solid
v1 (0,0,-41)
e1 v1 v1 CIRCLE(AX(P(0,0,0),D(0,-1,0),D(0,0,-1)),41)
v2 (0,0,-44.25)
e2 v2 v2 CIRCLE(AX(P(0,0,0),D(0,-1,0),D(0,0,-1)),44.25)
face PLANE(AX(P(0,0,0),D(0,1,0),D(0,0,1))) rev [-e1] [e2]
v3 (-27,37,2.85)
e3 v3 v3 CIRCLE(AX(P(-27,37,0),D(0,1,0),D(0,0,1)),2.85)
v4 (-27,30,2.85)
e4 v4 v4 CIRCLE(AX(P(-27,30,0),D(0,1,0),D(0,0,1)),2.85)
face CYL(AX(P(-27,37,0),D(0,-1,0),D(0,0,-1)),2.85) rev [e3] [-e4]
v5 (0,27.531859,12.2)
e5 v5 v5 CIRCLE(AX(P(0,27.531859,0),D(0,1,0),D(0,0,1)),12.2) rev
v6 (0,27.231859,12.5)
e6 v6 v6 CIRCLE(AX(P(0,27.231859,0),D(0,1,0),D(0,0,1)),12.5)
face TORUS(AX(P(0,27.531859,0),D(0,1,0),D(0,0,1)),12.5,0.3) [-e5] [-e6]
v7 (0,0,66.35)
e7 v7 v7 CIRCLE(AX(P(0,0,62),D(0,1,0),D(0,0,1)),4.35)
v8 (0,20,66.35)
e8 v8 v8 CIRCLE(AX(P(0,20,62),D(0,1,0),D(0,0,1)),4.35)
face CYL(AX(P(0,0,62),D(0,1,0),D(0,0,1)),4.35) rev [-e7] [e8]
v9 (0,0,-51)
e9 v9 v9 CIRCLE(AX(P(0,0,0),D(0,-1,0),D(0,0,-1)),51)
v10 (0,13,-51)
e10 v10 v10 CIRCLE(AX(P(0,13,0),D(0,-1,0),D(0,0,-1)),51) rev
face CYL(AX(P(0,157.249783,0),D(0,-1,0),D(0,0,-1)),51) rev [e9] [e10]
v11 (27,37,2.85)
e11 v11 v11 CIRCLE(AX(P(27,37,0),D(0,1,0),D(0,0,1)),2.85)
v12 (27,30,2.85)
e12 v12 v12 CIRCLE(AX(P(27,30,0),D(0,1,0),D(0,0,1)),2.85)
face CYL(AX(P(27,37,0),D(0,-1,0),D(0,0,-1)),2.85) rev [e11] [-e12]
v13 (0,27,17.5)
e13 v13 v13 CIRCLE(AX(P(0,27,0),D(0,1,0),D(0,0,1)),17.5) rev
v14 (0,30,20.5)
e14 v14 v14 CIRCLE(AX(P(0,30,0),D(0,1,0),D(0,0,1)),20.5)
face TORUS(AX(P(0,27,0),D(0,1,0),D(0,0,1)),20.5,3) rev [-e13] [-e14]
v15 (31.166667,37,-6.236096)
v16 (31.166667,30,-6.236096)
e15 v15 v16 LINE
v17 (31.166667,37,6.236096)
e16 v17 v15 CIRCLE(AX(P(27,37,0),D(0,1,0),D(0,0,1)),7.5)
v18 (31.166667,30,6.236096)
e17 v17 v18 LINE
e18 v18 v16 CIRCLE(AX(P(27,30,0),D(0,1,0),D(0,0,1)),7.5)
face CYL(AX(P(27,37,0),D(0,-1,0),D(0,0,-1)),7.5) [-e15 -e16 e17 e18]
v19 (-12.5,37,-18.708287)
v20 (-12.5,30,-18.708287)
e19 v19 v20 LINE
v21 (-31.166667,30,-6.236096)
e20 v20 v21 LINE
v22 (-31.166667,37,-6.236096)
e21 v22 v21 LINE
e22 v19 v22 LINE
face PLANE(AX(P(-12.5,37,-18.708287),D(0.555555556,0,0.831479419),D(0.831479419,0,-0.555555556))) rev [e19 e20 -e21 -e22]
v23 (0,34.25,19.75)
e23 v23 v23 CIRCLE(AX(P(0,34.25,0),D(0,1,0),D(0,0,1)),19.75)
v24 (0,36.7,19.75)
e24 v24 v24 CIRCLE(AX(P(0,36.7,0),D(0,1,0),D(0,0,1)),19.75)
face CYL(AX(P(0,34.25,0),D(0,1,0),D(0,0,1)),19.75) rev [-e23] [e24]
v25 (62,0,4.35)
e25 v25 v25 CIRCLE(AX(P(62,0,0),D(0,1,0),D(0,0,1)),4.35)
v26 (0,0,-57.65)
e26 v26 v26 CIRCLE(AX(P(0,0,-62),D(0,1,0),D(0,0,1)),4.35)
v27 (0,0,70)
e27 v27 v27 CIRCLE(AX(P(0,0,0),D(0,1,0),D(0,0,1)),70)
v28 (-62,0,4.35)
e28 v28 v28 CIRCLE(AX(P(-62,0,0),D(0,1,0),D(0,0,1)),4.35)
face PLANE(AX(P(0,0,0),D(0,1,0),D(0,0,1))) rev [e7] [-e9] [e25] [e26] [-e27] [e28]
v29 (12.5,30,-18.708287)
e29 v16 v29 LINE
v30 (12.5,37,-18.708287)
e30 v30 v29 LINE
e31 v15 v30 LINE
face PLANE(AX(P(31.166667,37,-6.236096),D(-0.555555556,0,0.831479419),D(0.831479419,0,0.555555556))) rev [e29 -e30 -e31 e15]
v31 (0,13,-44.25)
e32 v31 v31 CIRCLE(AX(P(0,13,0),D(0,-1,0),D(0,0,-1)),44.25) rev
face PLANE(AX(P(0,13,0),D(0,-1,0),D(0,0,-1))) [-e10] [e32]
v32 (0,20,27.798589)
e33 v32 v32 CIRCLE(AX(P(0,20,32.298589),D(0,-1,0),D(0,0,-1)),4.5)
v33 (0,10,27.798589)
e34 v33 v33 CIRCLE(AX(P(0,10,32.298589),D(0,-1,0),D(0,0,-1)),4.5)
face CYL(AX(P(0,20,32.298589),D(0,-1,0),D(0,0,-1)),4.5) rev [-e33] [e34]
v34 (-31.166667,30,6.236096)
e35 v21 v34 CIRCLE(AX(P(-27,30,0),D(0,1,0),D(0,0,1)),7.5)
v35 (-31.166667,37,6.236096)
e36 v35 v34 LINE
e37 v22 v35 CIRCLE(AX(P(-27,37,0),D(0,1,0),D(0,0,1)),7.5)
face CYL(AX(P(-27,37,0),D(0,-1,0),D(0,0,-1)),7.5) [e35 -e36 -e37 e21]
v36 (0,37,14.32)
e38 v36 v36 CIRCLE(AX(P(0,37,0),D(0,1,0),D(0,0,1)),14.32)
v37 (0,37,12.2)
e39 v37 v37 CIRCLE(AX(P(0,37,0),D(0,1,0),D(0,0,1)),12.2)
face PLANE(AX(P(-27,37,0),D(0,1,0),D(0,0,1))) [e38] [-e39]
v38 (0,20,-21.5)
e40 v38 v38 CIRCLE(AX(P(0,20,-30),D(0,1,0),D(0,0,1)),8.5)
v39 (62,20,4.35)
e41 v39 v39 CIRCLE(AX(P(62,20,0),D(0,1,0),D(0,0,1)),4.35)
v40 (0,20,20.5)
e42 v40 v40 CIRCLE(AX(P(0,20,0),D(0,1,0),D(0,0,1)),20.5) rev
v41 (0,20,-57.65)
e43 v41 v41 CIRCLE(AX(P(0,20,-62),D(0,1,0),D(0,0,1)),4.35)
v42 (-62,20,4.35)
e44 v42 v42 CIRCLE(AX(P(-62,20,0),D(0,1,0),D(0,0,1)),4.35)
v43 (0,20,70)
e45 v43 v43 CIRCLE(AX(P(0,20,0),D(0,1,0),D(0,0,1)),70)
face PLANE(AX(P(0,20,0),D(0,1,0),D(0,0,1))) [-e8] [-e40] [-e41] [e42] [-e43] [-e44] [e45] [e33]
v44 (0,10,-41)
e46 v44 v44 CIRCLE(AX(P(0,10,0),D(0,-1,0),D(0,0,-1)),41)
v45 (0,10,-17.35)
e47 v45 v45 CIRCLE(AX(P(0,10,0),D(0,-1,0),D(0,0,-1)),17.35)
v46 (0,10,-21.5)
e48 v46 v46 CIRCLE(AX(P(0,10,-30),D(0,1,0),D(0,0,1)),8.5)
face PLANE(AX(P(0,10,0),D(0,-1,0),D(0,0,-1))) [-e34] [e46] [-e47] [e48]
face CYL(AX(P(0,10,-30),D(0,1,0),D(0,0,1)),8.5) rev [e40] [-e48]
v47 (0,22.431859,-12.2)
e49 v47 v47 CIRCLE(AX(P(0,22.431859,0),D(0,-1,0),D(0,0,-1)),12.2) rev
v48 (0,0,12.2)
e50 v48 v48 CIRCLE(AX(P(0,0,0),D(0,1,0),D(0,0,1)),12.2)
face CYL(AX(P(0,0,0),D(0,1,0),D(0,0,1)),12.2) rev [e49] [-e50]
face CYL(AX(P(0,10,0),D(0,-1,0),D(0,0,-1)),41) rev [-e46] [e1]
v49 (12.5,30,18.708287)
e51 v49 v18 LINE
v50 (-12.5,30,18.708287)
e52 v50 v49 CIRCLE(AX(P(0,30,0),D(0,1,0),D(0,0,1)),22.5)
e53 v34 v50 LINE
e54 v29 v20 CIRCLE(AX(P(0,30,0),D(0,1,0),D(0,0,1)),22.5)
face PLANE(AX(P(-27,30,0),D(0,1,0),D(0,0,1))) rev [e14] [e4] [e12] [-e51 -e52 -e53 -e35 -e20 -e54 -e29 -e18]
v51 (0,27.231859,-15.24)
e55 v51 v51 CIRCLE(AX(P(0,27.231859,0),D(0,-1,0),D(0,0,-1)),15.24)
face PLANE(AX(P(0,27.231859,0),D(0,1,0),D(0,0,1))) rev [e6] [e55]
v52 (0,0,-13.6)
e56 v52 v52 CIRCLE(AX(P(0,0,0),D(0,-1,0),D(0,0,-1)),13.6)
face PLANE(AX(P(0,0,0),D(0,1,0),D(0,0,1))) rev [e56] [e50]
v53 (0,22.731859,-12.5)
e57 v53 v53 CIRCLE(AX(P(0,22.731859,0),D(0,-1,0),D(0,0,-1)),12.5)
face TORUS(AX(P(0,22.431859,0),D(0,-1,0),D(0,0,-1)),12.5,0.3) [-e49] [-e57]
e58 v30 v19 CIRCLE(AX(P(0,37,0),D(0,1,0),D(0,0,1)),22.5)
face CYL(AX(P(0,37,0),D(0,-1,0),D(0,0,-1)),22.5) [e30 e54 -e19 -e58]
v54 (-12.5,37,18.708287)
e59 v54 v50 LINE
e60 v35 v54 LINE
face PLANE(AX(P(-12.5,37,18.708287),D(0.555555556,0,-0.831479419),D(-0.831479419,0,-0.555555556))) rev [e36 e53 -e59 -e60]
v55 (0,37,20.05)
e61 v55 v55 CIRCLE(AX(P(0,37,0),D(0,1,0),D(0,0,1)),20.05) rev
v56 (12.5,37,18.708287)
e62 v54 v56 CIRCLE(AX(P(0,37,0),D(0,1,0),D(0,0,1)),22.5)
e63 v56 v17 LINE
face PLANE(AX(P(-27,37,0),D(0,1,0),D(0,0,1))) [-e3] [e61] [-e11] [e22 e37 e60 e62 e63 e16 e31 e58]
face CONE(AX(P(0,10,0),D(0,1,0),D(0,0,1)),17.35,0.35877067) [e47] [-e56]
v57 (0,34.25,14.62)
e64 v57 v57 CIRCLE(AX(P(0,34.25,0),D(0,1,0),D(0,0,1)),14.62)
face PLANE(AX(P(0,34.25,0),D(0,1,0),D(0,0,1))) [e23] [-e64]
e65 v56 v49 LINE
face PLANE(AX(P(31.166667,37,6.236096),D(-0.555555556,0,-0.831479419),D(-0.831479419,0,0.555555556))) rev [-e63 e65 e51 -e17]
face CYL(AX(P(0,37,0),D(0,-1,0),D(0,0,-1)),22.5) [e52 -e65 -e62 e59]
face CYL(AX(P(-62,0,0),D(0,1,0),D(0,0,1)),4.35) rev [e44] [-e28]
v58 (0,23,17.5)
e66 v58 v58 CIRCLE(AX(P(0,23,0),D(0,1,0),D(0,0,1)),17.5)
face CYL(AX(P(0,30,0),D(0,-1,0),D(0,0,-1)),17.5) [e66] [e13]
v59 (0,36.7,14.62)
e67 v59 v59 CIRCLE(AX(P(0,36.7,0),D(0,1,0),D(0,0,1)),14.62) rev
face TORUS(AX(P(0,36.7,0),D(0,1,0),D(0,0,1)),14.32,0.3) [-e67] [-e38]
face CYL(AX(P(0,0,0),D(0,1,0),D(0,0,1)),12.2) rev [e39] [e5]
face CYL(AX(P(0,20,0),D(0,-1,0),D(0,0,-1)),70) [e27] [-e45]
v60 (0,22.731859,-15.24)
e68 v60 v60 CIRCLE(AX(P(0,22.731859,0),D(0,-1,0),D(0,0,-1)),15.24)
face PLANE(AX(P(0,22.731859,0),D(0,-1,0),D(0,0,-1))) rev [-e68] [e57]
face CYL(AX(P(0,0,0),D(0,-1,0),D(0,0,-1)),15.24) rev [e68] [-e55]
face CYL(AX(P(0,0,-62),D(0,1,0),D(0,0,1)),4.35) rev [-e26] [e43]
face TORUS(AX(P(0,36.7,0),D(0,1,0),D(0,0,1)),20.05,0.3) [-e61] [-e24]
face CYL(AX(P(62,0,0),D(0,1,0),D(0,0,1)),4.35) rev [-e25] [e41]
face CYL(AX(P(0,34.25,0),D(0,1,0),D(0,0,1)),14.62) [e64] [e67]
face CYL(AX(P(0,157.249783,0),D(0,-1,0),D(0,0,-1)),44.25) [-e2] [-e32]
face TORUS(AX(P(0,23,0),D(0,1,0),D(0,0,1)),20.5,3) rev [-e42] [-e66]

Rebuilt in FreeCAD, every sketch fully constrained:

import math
import FreeCAD as App
import Part
import Sketcher


def edges_at(feature, points):
    """Names of the edges that pass closest to the given points."""
    edges = feature.Shape.Edges
    near = lambda p: min(range(len(edges)), key=lambda i: edges[i].distToShape(Part.Vertex(*p))[0])
    return sorted({f"Edge{near(p) + 1}" for p in points})


def add_polygon(sketch, points):
    """Adds a closed chain of lines whose ends are joined by coincident constraints."""
    first, n = sketch.GeometryCount, len(points)
    for a, b in zip(points, points[1:] + points[:1]):
        sketch.addGeometry(Part.LineSegment(App.Vector(*a, 0), App.Vector(*b, 0)), False)
    for i in range(n):
        sketch.addConstraint(Sketcher.Constraint("Coincident", first + i, 2, first + (i + 1) % n, 1))

doc = App.newDocument("Part")
body = doc.addObject("PartDesign::Body", "Body")

sketch1 = doc.addObject("Sketcher::SketchObject", "Sketch")
body.addObject(sketch1)
sketch1.AttachmentSupport = (doc.XZ_Plane, [""])
sketch1.MapMode = "FlatFace"
sketch1.addGeometry(Part.Circle(App.Vector(0, 0, 0), App.Vector(0, 0, 1), 70), False)
sketch1.addConstraint(Sketcher.Constraint("Coincident", 0, 3, -1, 1))
sketch1.addConstraint(Sketcher.Constraint("Diameter", 0, 140.0))
pad1 = doc.addObject("PartDesign::Pad", "Pad")
body.addObject(pad1)
pad1.Profile = sketch1
pad1.Length = 20
pad1.Reversed = True

sketch2 = doc.addObject("Sketcher::SketchObject", "Sketch001")
body.addObject(sketch2)
sketch2.AttachmentSupport = (doc.XZ_Plane, [""])
sketch2.MapMode = "FlatFace"
sketch2.addGeometry(Part.Circle(App.Vector(0, 0, 0), App.Vector(0, 0, 1), 50.03), False)
sketch2.addGeometry(Part.Circle(App.Vector(0, 0, 0), App.Vector(0, 0, 1), 45), False)
sketch2.addGeometry(Part.Circle(App.Vector(0, 0, 0), App.Vector(0, 0, 1), 41), False)
sketch2.addGeometry(Part.Circle(App.Vector(0, 0, 0), App.Vector(0, 0, 1), 17.35), False)
sketch2.addConstraint(Sketcher.Constraint("Coincident", 0, 3, -1, 1))
sketch2.addConstraint(Sketcher.Constraint("Coincident", 1, 3, -1, 1))
sketch2.addConstraint(Sketcher.Constraint("Coincident", 2, 3, -1, 1))
sketch2.addConstraint(Sketcher.Constraint("Coincident", 3, 3, -1, 1))
sketch2.addConstraint(Sketcher.Constraint("Diameter", 1, 90.0))
sketch2.addConstraint(Sketcher.Constraint("Diameter", 2, 82.0))
sketch2.addConstraint(Sketcher.Constraint("Diameter", 3, 34.7))
sketch2.addConstraint(Sketcher.Constraint("Diameter", 0, 100.06))
pocket1 = doc.addObject("PartDesign::Pocket", "Pocket")
body.addObject(pocket1)
pocket1.Profile = sketch2
pocket1.Length = 10

sketch3 = doc.addObject("Sketcher::SketchObject", "Sketch002")
body.addObject(sketch3)
sketch3.AttachmentSupport = (doc.XY_Plane, [""])
sketch3.MapMode = "FlatFace"
add_polygon(sketch3, [(-17.35, 10), (-17.35, 0), (-13.6, 0)])
sketch3.addConstraint(Sketcher.Constraint("Vertical", 0))
sketch3.addConstraint(Sketcher.Constraint("Horizontal", 1))
sketch3.addConstraint(Sketcher.Constraint("PointOnObject", 0, 2, -1))
sketch3.addConstraint(Sketcher.Constraint("DistanceY", 0, 2, 0, 1, 10.0))
sketch3.addConstraint(Sketcher.Constraint("DistanceX", 1, 1, 1, 2, 3.75))
sketch3.addConstraint(Sketcher.Constraint("DistanceX", 1, 2, -1, 1, 13.6))
groove = doc.addObject("PartDesign::Groove", "Groove")
body.addObject(groove)
groove.Profile = sketch3
groove.ReferenceAxis = (sketch3, ["V_Axis"])
groove.Angle = 360

sketch4 = doc.addObject("Sketcher::SketchObject", "Sketch003")
body.addObject(sketch4)
sketch4.AttachmentSupport = (doc.XZ_Plane, [""])
sketch4.MapMode = "FlatFace"
sketch4.AttachmentOffset = App.Placement(App.Vector(0, 0, -20), App.Rotation())
sketch4.addGeometry(Part.Circle(App.Vector(0, 0, 0), App.Vector(0, 0, 1), 17.5), False)
sketch4.addConstraint(Sketcher.Constraint("Coincident", 0, 3, -1, 1))
sketch4.addConstraint(Sketcher.Constraint("Diameter", 0, 35.0))
pad2 = doc.addObject("PartDesign::Pad", "Pad001")
body.addObject(pad2)
pad2.Profile = sketch4
pad2.Length = 10
pad2.Reversed = True

sketch5 = doc.addObject("Sketcher::SketchObject", "Sketch004")
body.addObject(sketch5)
sketch5.AttachmentSupport = (doc.XZ_Plane, [""])
sketch5.MapMode = "FlatFace"
sketch5.AttachmentOffset = App.Placement(App.Vector(0, 0, -30), App.Rotation())
sketch5.addGeometry(Part.LineSegment(App.Vector(12.5, 18.708287, 0), App.Vector(31.166667, 6.236096, 0)), False)
sketch5.addGeometry(Part.ArcOfCircle(Part.Circle(App.Vector(27, 0, 0), App.Vector(0, 0, 1), 7.5), math.radians(-56.251011), math.radians(56.251011)), False)
sketch5.addGeometry(Part.LineSegment(App.Vector(31.166667, -6.236096, 0), App.Vector(12.5, -18.708287, 0)), False)
sketch5.addGeometry(Part.ArcOfCircle(Part.Circle(App.Vector(0, 0, 0), App.Vector(0, 0, 1), 22.5), math.radians(-123.748989), math.radians(-56.251011)), False)
sketch5.addGeometry(Part.LineSegment(App.Vector(-12.5, -18.708287, 0), App.Vector(-31.166667, -6.236096, 0)), False)
sketch5.addGeometry(Part.ArcOfCircle(Part.Circle(App.Vector(-27, 0, 0), App.Vector(0, 0, 1), 7.5), math.radians(123.748989), math.radians(236.251011)), False)
sketch5.addGeometry(Part.LineSegment(App.Vector(-31.166667, 6.236096, 0), App.Vector(-12.5, 18.708287, 0)), False)
sketch5.addGeometry(Part.ArcOfCircle(Part.Circle(App.Vector(0, 0, 0), App.Vector(0, 0, 1), 22.5), math.radians(56.251011), math.radians(123.748989)), False)
sketch5.addGeometry(Part.Circle(App.Vector(27, 0, 0), App.Vector(0, 0, 1), 2.85), False)
sketch5.addGeometry(Part.Circle(App.Vector(-27, 0, 0), App.Vector(0, 0, 1), 2.85), False)
sketch5.addConstraint(Sketcher.Constraint("Tangent", 0, 2, 1, 2))
sketch5.addConstraint(Sketcher.Constraint("Tangent", 1, 1, 2, 1))
sketch5.addConstraint(Sketcher.Constraint("Tangent", 2, 2, 3, 2))
sketch5.addConstraint(Sketcher.Constraint("Tangent", 3, 1, 4, 1))
sketch5.addConstraint(Sketcher.Constraint("Tangent", 4, 2, 5, 2))
sketch5.addConstraint(Sketcher.Constraint("Tangent", 5, 1, 6, 1))
sketch5.addConstraint(Sketcher.Constraint("Tangent", 6, 2, 7, 2))
sketch5.addConstraint(Sketcher.Constraint("Tangent", 7, 1, 0, 1))
sketch5.addConstraint(Sketcher.Constraint("Coincident", 3, 3, -1, 1))
sketch5.addConstraint(Sketcher.Constraint("Coincident", 7, 3, -1, 1))
sketch5.addConstraint(Sketcher.Constraint("Coincident", 8, 3, 1, 3))
sketch5.addConstraint(Sketcher.Constraint("Coincident", 9, 3, 5, 3))
sketch5.addConstraint(Sketcher.Constraint("Equal", 1, 5))
sketch5.addConstraint(Sketcher.Constraint("Equal", 3, 7))
sketch5.addConstraint(Sketcher.Constraint("Equal", 8, 9))
sketch5.addConstraint(Sketcher.Constraint("Symmetric", 1, 3, 5, 3, -1, 1))
sketch5.addConstraint(Sketcher.Constraint("PointOnObject", 1, 3, -1))
sketch5.addConstraint(Sketcher.Constraint("Diameter", 8, 5.7))
sketch5.addConstraint(Sketcher.Constraint("Radius", 1, 7.5))
sketch5.addConstraint(Sketcher.Constraint("Radius", 3, 22.5))
sketch5.addConstraint(Sketcher.Constraint("DistanceX", -1, 1, 1, 3, 27.0))
pad3 = doc.addObject("PartDesign::Pad", "Pad002")
body.addObject(pad3)
pad3.Profile = sketch5
pad3.Length = 7
pad3.Reversed = True

sketch6 = doc.addObject("Sketcher::SketchObject", "Sketch005")
body.addObject(sketch6)
sketch6.AttachmentSupport = (doc.XZ_Plane, [""])
sketch6.MapMode = "FlatFace"
sketch6.AttachmentOffset = App.Placement(App.Vector(0, 0, -37), App.Rotation())
sketch6.addGeometry(Part.Circle(App.Vector(0, 0, 0), App.Vector(0, 0, 1), 12.2), False)
sketch6.addConstraint(Sketcher.Constraint("Coincident", 0, 3, -1, 1))
sketch6.addConstraint(Sketcher.Constraint("Diameter", 0, 24.4))
pocket2 = doc.addObject("PartDesign::Pocket", "Pocket001")
body.addObject(pocket2)
pocket2.Profile = sketch6
pocket2.Type = "ThroughAll"
pocket2.Reversed = True

sketch7 = doc.addObject("Sketcher::SketchObject", "Sketch006")
body.addObject(sketch7)
sketch7.AttachmentSupport = (doc.XZ_Plane, [""])
sketch7.MapMode = "FlatFace"
sketch7.AttachmentOffset = App.Placement(App.Vector(0, 0, -37), App.Rotation())
sketch7.addGeometry(Part.Circle(App.Vector(0, 0, 0), App.Vector(0, 0, 1), 19.75), False)
sketch7.addGeometry(Part.Circle(App.Vector(0, 0, 0), App.Vector(0, 0, 1), 14.62), False)
sketch7.addConstraint(Sketcher.Constraint("Coincident", 0, 3, -1, 1))
sketch7.addConstraint(Sketcher.Constraint("Coincident", 1, 3, -1, 1))
sketch7.addConstraint(Sketcher.Constraint("Diameter", 0, 39.5))
sketch7.addConstraint(Sketcher.Constraint("Diameter", 1, 29.24))
pocket3 = doc.addObject("PartDesign::Pocket", "Pocket002")
body.addObject(pocket3)
pocket3.Profile = sketch7
pocket3.Length = 2.75
pocket3.Reversed = True
doc.recompute()

fillet = doc.addObject("PartDesign::Fillet", "Fillet")
body.addObject(fillet)
fillet.Base = (pocket3, edges_at(pocket3, [(0, 37, -19.75), (0, 37, -14.62)]))
fillet.Radius = 0.3
doc.recompute()

fillet2 = doc.addObject("PartDesign::Fillet", "Fillet001")
body.addObject(fillet2)
fillet2.Base = (fillet, edges_at(fillet, [(0, 20, -17.5), (0, 30, -17.5)]))
fillet2.Radius = 3

sketch8 = doc.addObject("Sketcher::SketchObject", "Sketch007")
body.addObject(sketch8)
sketch8.AttachmentSupport = (doc.XY_Plane, [""])
sketch8.MapMode = "FlatFace"
add_polygon(sketch8, [(-15.24, 27.231859), (-15.24, 22.731859), (-11.82926, 22.731859), (-11.82926, 27.231859)])
sketch8.addConstraint(Sketcher.Constraint("Vertical", 0))
sketch8.addConstraint(Sketcher.Constraint("Horizontal", 1))
sketch8.addConstraint(Sketcher.Constraint("Vertical", 2))
sketch8.addConstraint(Sketcher.Constraint("Horizontal", 3))
sketch8.addConstraint(Sketcher.Constraint("DistanceY", 0, 2, 0, 1, 4.5))
sketch8.addConstraint(Sketcher.Constraint("DistanceX", 0, 2, -1, 1, 15.24))
sketch8.addConstraint(Sketcher.Constraint("DistanceX", 1, 1, 1, 2, 3.41074))
sketch8.addConstraint(Sketcher.Constraint("DistanceY", -1, 1, 0, 2, 22.731859))
groove2 = doc.addObject("PartDesign::Groove", "Groove001")
body.addObject(groove2)
groove2.Profile = sketch8
groove2.ReferenceAxis = (sketch8, ["V_Axis"])
groove2.Angle = 360

sketch9 = doc.addObject("Sketcher::SketchObject", "Sketch008")
body.addObject(sketch9)
sketch9.AttachmentSupport = (doc.XZ_Plane, [""])
sketch9.MapMode = "FlatFace"
sketch9.AttachmentOffset = App.Placement(App.Vector(0, 0, -20), App.Rotation())
sketch9.addGeometry(Part.Circle(App.Vector(0, -62, 0), App.Vector(0, 0, 1), 4.35), False)
sketch9.addGeometry(Part.Circle(App.Vector(62, 0, 0), App.Vector(0, 0, 1), 4.35), False)
sketch9.addGeometry(Part.Circle(App.Vector(0, 62, 0), App.Vector(0, 0, 1), 4.35), False)
sketch9.addGeometry(Part.Circle(App.Vector(-62, 0, 0), App.Vector(0, 0, 1), 4.35), False)
sketch9.addConstraint(Sketcher.Constraint("Equal", 0, 1))
sketch9.addConstraint(Sketcher.Constraint("Equal", 1, 2))
sketch9.addConstraint(Sketcher.Constraint("Equal", 2, 3))
sketch9.addConstraint(Sketcher.Constraint("Symmetric", 0, 3, 2, 3, -1, 1))
sketch9.addConstraint(Sketcher.Constraint("Symmetric", 1, 3, 3, 3, -1, 1))
sketch9.addConstraint(Sketcher.Constraint("PointOnObject", 0, 3, -2))
sketch9.addConstraint(Sketcher.Constraint("PointOnObject", 1, 3, -1))
sketch9.addConstraint(Sketcher.Constraint("Diameter", 0, 8.7))
sketch9.addConstraint(Sketcher.Constraint("DistanceY", 0, 3, -1, 1, 62.0))
sketch9.addConstraint(Sketcher.Constraint("DistanceX", -1, 1, 1, 3, 62.0))
pocket4 = doc.addObject("PartDesign::Pocket", "Pocket003")
body.addObject(pocket4)
pocket4.Profile = sketch9
pocket4.Type = "ThroughAll"
pocket4.Reversed = True

sketch10 = doc.addObject("Sketcher::SketchObject", "Sketch009")
body.addObject(sketch10)
sketch10.AttachmentSupport = (doc.XZ_Plane, [""])
sketch10.MapMode = "FlatFace"
sketch10.AttachmentOffset = App.Placement(App.Vector(0, 0, -20), App.Rotation())
sketch10.addGeometry(Part.Circle(App.Vector(0, -30, 0), App.Vector(0, 0, 1), 8.5), False)
sketch10.addConstraint(Sketcher.Constraint("PointOnObject", 0, 3, -2))
sketch10.addConstraint(Sketcher.Constraint("Diameter", 0, 17.0))
sketch10.addConstraint(Sketcher.Constraint("DistanceY", 0, 3, -1, 1, 30.0))
pocket5 = doc.addObject("PartDesign::Pocket", "Pocket004")
body.addObject(pocket5)
pocket5.Profile = sketch10
pocket5.Length = 10
pocket5.Reversed = True

sketch11 = doc.addObject("Sketcher::SketchObject", "Sketch010")
body.addObject(sketch11)
sketch11.AttachmentSupport = (doc.XZ_Plane, [""])
sketch11.MapMode = "FlatFace"
sketch11.AttachmentOffset = App.Placement(App.Vector(0, 0, -10), App.Rotation())
sketch11.addGeometry(Part.Circle(App.Vector(0, 0, 0), App.Vector(0, 0, 1), 50.03), False)
sketch11.addGeometry(Part.Circle(App.Vector(0, 0, 0), App.Vector(0, 0, 1), 45), False)
sketch11.addConstraint(Sketcher.Constraint("Coincident", 0, 3, -1, 1))
sketch11.addConstraint(Sketcher.Constraint("Coincident", 1, 3, -1, 1))
sketch11.addConstraint(Sketcher.Constraint("Diameter", 1, 90.0))
sketch11.addConstraint(Sketcher.Constraint("Diameter", 0, 100.06))
pocket6 = doc.addObject("PartDesign::Pocket", "Pocket005")
body.addObject(pocket6)
pocket6.Profile = sketch11
pocket6.Length = 3

sketch12 = doc.addObject("Sketcher::SketchObject", "Sketch011")
body.addObject(sketch12)
sketch12.AttachmentSupport = (doc.XZ_Plane, [""])
sketch12.MapMode = "FlatFace"
sketch12.AttachmentOffset = App.Placement(App.Vector(0, 0, -10), App.Rotation())
sketch12.addGeometry(Part.Circle(App.Vector(0, 32.298589, 0), App.Vector(0, 0, 1), 4.5), False)
sketch12.addConstraint(Sketcher.Constraint("PointOnObject", 0, 3, -2))
sketch12.addConstraint(Sketcher.Constraint("Diameter", 0, 9.0))
sketch12.addConstraint(Sketcher.Constraint("DistanceY", -1, 1, 0, 3, 32.298589))
pocket7 = doc.addObject("PartDesign::Pocket", "Pocket006")
body.addObject(pocket7)
pocket7.Profile = sketch12
pocket7.Length = 10

sketch13 = doc.addObject("Sketcher::SketchObject", "Sketch012")
body.addObject(sketch13)
sketch13.AttachmentSupport = (doc.XZ_Plane, [""])
sketch13.MapMode = "FlatFace"
sketch13.addGeometry(Part.Circle(App.Vector(0, 0, 0), App.Vector(0, 0, 1), 51), False)
sketch13.addGeometry(Part.Circle(App.Vector(0, 0, 0), App.Vector(0, 0, 1), 44.25), False)
sketch13.addConstraint(Sketcher.Constraint("Coincident", 0, 3, -1, 1))
sketch13.addConstraint(Sketcher.Constraint("Coincident", 1, 3, -1, 1))
sketch13.addConstraint(Sketcher.Constraint("Diameter", 0, 102.0))
sketch13.addConstraint(Sketcher.Constraint("Diameter", 1, 88.5))
pocket8 = doc.addObject("PartDesign::Pocket", "Pocket007")
body.addObject(pocket8)
pocket8.Profile = sketch13
pocket8.Length = 13
doc.recompute()

fillet3 = doc.addObject("PartDesign::Fillet", "Fillet002")
body.addObject(fillet3)
fillet3.Base = (pocket8, edges_at(pocket8, [(0, 27.232, -12.2), (0, 22.732, -12.2)]))
fillet3.Radius = 0.3

doc.recompute()
